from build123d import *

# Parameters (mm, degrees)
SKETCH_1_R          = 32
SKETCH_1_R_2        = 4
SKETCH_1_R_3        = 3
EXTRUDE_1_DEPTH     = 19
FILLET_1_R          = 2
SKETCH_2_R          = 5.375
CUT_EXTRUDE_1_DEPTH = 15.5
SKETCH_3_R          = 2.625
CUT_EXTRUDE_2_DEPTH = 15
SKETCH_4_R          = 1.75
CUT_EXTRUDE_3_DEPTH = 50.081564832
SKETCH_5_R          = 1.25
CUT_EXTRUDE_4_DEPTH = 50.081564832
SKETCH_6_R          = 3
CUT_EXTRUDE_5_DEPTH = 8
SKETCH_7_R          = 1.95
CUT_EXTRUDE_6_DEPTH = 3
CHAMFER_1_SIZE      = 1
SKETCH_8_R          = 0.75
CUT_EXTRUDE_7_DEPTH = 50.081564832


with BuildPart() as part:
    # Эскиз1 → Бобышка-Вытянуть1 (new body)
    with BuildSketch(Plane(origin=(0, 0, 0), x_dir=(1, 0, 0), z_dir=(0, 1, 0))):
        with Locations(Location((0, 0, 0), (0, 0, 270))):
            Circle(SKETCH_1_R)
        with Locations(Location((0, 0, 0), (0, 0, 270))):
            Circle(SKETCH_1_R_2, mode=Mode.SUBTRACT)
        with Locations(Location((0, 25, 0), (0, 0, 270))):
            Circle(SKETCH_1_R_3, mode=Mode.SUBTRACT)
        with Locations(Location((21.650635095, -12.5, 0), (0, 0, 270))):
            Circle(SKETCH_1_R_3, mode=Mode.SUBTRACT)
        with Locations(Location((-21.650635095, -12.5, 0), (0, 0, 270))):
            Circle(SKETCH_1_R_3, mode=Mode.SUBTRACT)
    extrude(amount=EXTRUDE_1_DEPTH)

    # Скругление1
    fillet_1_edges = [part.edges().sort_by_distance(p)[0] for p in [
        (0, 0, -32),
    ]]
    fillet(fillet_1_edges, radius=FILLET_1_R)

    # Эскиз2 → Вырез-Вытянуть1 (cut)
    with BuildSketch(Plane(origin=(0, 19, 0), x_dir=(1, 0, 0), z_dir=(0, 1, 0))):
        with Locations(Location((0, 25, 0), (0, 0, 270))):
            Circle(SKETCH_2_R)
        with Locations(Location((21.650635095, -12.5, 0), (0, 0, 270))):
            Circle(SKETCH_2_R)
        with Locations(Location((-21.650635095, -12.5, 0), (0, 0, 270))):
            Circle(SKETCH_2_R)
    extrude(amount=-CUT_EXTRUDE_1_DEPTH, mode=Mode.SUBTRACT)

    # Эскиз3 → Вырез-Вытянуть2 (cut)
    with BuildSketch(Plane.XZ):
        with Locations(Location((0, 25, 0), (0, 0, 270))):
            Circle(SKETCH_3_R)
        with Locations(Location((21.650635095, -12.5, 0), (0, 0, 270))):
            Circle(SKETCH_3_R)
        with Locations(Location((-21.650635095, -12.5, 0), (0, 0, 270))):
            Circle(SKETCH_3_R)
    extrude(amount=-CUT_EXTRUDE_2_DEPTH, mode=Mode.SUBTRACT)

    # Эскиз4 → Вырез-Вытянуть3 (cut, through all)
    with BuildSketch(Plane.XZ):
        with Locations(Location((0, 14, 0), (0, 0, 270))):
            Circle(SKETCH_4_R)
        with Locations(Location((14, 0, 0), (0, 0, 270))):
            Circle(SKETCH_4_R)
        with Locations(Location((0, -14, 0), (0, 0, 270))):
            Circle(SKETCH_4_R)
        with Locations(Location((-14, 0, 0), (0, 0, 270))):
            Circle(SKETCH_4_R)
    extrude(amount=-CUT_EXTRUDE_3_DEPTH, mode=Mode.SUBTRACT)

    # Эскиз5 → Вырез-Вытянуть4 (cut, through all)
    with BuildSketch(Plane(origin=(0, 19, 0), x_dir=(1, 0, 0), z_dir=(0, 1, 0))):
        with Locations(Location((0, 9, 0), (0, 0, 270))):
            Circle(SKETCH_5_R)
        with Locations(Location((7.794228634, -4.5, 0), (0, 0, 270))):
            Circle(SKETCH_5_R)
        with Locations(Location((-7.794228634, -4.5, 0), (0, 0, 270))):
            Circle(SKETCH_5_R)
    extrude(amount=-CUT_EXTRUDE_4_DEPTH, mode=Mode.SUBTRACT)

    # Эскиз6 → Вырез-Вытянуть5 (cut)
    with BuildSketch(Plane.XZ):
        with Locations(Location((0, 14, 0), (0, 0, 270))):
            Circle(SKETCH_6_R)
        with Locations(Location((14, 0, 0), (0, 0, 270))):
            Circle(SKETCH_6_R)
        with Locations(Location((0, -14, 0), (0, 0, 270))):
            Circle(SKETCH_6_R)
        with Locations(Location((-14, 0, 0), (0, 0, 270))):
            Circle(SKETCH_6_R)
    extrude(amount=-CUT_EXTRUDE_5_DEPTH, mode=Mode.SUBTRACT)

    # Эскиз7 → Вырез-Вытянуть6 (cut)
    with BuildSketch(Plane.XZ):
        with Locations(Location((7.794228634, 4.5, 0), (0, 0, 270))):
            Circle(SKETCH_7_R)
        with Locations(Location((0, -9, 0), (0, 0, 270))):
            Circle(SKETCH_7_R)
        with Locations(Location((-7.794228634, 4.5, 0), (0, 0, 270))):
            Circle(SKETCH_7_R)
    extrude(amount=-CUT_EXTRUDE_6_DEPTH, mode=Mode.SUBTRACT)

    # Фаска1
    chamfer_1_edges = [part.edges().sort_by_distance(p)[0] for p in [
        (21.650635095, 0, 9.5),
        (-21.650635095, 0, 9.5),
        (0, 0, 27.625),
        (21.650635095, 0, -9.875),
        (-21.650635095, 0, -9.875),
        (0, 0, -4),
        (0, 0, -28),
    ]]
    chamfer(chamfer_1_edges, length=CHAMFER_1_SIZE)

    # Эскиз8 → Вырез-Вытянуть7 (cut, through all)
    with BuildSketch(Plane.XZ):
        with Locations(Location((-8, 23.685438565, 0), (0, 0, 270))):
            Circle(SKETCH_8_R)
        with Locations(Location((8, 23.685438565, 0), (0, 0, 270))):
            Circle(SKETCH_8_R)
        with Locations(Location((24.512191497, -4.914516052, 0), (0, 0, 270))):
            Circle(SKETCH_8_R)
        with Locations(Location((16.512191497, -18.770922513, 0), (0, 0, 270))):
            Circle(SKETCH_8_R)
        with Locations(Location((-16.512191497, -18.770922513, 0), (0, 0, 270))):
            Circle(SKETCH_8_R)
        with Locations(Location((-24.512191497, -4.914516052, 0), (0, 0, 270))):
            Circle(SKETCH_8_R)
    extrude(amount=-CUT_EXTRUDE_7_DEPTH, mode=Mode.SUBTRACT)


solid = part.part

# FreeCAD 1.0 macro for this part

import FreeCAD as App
import Part
import Sketcher
Q = App.Units.Quantity


def edges_at(feature, points):
    """Names of the edges that pass closest to the given points."""
    edges = feature.Shape.Edges
    near = lambda p: min(range(len(edges)), key=lambda i: edges[i].distToShape(Part.Vertex(*p))[0])
    return sorted({f"Edge{near(p) + 1}" for p in points})

doc = App.newDocument("Part")
params = doc.addObject("Spreadsheet::Sheet", "Params")
for row, (alias, value) in enumerate([
    ("sketch1_diameter", "64 mm"),
    ("sketch1_diameter2", "6 mm"),
    ("sketch1_diameter3", "8 mm"),
    ("pad1_length", "19 mm"),
    ("fillet_radius", "2 mm"),
    ("sketch2_diameter", "10.75 mm"),
    ("pocket1_length", "15.5 mm"),
    ("sketch3_diameter", "5.25 mm"),
    ("pocket2_length", "15 mm"),
    ("sketch4_diameter", "3.5 mm"),
    ("sketch5_diameter", "2.5 mm"),
    ("sketch6_diameter", "6 mm"),
    ("pocket5_length", "8 mm"),
    ("sketch7_diameter", "3.9 mm"),
    ("pocket6_length", "3 mm"),
    ("chamfer_size", "1 mm"),
    ("sketch8_diameter", "1.5 mm"),
], start=1):
    params.set(f"A{row}", alias)
    params.set(f"B{row}", "=" + value)
    params.setAlias(f"B{row}", alias)

body = doc.addObject("PartDesign::Body", "Body")

sketch1 = body.newObject("Sketcher::SketchObject", "Sketch")
sketch1.AttachmentSupport = (doc.getObject("XZ_Plane"), [""])
sketch1.MapMode = "FlatFace"
sketch1.addGeometry([
    Part.Circle(App.Vector(0, 0, 0), App.Vector(0, 0, 1), 32),
    Part.Circle(App.Vector(0, -25, 0), App.Vector(0, 0, 1), 3),
    Part.Circle(App.Vector(-21.650635, 12.5, 0), App.Vector(0, 0, 1), 3),
    Part.Circle(App.Vector(0, 0, 0), App.Vector(0, 0, 1), 4),
    Part.Circle(App.Vector(21.650635, 12.5, 0), App.Vector(0, 0, 1), 3),
], False)
sketch1.addConstraint([
    Sketcher.Constraint("Coincident", 0, 3, -1, 1),
    Sketcher.Constraint("Coincident", 3, 3, -1, 1),
    Sketcher.Constraint("Equal", 1, 2),
    Sketcher.Constraint("Equal", 2, 4),
    Sketcher.Constraint("Symmetric", 2, 3, 4, 3, -2),
    Sketcher.Constraint("PointOnObject", 1, 3, -2),
    Sketcher.Constraint("Diameter", 0, Q("64 mm")),
    Sketcher.Constraint("Diameter", 1, Q("6 mm")),
    Sketcher.Constraint("Diameter", 3, Q("8 mm")),
    Sketcher.Constraint("DistanceY", 1, 3, -1, 1, Q("25 mm")),
    Sketcher.Constraint("DistanceY", -1, 1, 2, 3, Q("12.5 mm")),
    Sketcher.Constraint("DistanceX", 2, 3, 4, 3, Q("43.30127 mm")),
])
sketch1.setExpression("Constraints[6]", "Params.sketch1_diameter")
sketch1.setExpression("Constraints[7]", "Params.sketch1_diameter2")
sketch1.setExpression("Constraints[8]", "Params.sketch1_diameter3")
pad1 = body.newObject("PartDesign::Pad", "Pad")
pad1.Profile = sketch1
pad1.setExpression("Length", "Params.pad1_length")
pad1.Reversed = True
doc.recompute()

fillet = body.newObject("PartDesign::Fillet", "Fillet")
fillet.Base = (pad1, edges_at(pad1, [(0, 0, -32)]))
fillet.setExpression("Radius", "Params.fillet_radius")

sketch2 = body.newObject("Sketcher::SketchObject", "Sketch001")
sketch2.AttachmentSupport = (doc.getObject("XZ_Plane"), [""])
sketch2.MapMode = "FlatFace"
sketch2.AttachmentOffset = App.Placement(App.Vector(0, 0, -19), App.Rotation())
sketch2.addGeometry([
    Part.Circle(App.Vector(0, -25, 0), App.Vector(0, 0, 1), 5.375),
    Part.Circle(App.Vector(21.650635, 12.5, 0), App.Vector(0, 0, 1), 5.375),
    Part.Circle(App.Vector(-21.650635, 12.5, 0), App.Vector(0, 0, 1), 5.375),
], False)
sketch2.addConstraint([
    Sketcher.Constraint("Equal", 0, 1),
    Sketcher.Constraint("Equal", 1, 2),
    Sketcher.Constraint("Symmetric", 1, 3, 2, 3, -2),
    Sketcher.Constraint("PointOnObject", 0, 3, -2),
    Sketcher.Constraint("Diameter", 0, Q("10.75 mm")),
    Sketcher.Constraint("DistanceY", 0, 3, -1, 1, Q("25 mm")),
    Sketcher.Constraint("DistanceY", -1, 1, 1, 3, Q("12.5 mm")),
    Sketcher.Constraint("DistanceX", 2, 3, 1, 3, Q("43.30127 mm")),
])
sketch2.setExpression("Constraints[4]", "Params.sketch2_diameter")
pocket1 = body.newObject("PartDesign::Pocket", "Pocket")
pocket1.Profile = sketch2
pocket1.setExpression("Length", "Params.pocket1_length")
pocket1.Reversed = True

sketch3 = body.newObject("Sketcher::SketchObject", "Sketch002")
sketch3.AttachmentSupport = (doc.getObject("XZ_Plane"), [""])
sketch3.MapMode = "FlatFace"
sketch3.addGeometry([
    Part.Circle(App.Vector(0, 25, 0), App.Vector(0, 0, 1), 2.625),
    Part.Circle(App.Vector(21.650635, -12.5, 0), App.Vector(0, 0, 1), 2.625),
    Part.Circle(App.Vector(-21.650635, -12.5, 0), App.Vector(0, 0, 1), 2.625),
], False)
sketch3.addConstraint([
    Sketcher.Constraint("Equal", 0, 1),
    Sketcher.Constraint("Equal", 1, 2),
    Sketcher.Constraint("Symmetric", 1, 3, 2, 3, -2),
    Sketcher.Constraint("PointOnObject", 0, 3, -2),
    Sketcher.Constraint("Diameter", 0, Q("5.25 mm")),
    Sketcher.Constraint("DistanceY", -1, 1, 0, 3, Q("25 mm")),
    Sketcher.Constraint("DistanceY", 1, 3, -1, 1, Q("12.5 mm")),
    Sketcher.Constraint("DistanceX", 2, 3, 1, 3, Q("43.30127 mm")),
])
sketch3.setExpression("Constraints[4]", "Params.sketch3_diameter")
pocket2 = body.newObject("PartDesign::Pocket", "Pocket001")
pocket2.Profile = sketch3
pocket2.setExpression("Length", "Params.pocket2_length")

sketch4 = body.newObject("Sketcher::SketchObject", "Sketch003")
sketch4.AttachmentSupport = (doc.getObject("XZ_Plane"), [""])
sketch4.MapMode = "FlatFace"
sketch4.addGeometry([
    Part.Circle(App.Vector(0, 14, 0), App.Vector(0, 0, 1), 1.75),
    Part.Circle(App.Vector(14, 0, 0), App.Vector(0, 0, 1), 1.75),
    Part.Circle(App.Vector(0, -14, 0), App.Vector(0, 0, 1), 1.75),
    Part.Circle(App.Vector(-14, 0, 0), App.Vector(0, 0, 1), 1.75),
], False)
sketch4.addConstraint([
    Sketcher.Constraint("Equal", 0, 1),
    Sketcher.Constraint("Equal", 1, 2),
    Sketcher.Constraint("Equal", 2, 3),
    Sketcher.Constraint("Symmetric", 0, 3, 2, 3, -1, 1),
    Sketcher.Constraint("Symmetric", 1, 3, 3, 3, -1, 1),
    Sketcher.Constraint("PointOnObject", 0, 3, -2),
    Sketcher.Constraint("PointOnObject", 1, 3, -1),
    Sketcher.Constraint("Diameter", 0, Q("3.5 mm")),
    Sketcher.Constraint("DistanceY", -1, 1, 0, 3, Q("14 mm")),
    Sketcher.Constraint("DistanceX", -1, 1, 1, 3, Q("14 mm")),
])
sketch4.setExpression("Constraints[7]", "Params.sketch4_diameter")
pocket3 = body.newObject("PartDesign::Pocket", "Pocket002")
pocket3.Profile = sketch4
pocket3.Type = "ThroughAll"

sketch5 = body.newObject("Sketcher::SketchObject", "Sketch004")
sketch5.AttachmentSupport = (doc.getObject("XZ_Plane"), [""])
sketch5.MapMode = "FlatFace"
sketch5.AttachmentOffset = App.Placement(App.Vector(0, 0, -19), App.Rotation())
sketch5.addGeometry([
    Part.Circle(App.Vector(0, -9, 0), App.Vector(0, 0, 1), 1.25),
    Part.Circle(App.Vector(7.794229, 4.5, 0), App.Vector(0, 0, 1), 1.25),
    Part.Circle(App.Vector(-7.794229, 4.5, 0), App.Vector(0, 0, 1), 1.25),
], False)
sketch5.addConstraint([
    Sketcher.Constraint("Equal", 0, 1),
    Sketcher.Constraint("Equal", 1, 2),
    Sketcher.Constraint("Symmetric", 1, 3, 2, 3, -2),
    Sketcher.Constraint("PointOnObject", 0, 3, -2),
    Sketcher.Constraint("Diameter", 0, Q("2.5 mm")),
    Sketcher.Constraint("DistanceY", 0, 3, -1, 1, Q("9 mm")),
    Sketcher.Constraint("DistanceY", -1, 1, 1, 3, Q("4.5 mm")),
    Sketcher.Constraint("DistanceX", -1, 1, 1, 3, Q("7.794229 mm")),
])
sketch5.setExpression("Constraints[4]", "Params.sketch5_diameter")
pocket4 = body.newObject("PartDesign::Pocket", "Pocket003")
pocket4.Profile = sketch5
pocket4.Type = "ThroughAll"
pocket4.Reversed = True

sketch6 = body.newObject("Sketcher::SketchObject", "Sketch005")
sketch6.AttachmentSupport = (doc.getObject("XZ_Plane"), [""])
sketch6.MapMode = "FlatFace"
sketch6.addGeometry([
    Part.Circle(App.Vector(0, 14, 0), App.Vector(0, 0, 1), 3),
    Part.Circle(App.Vector(14, 0, 0), App.Vector(0, 0, 1), 3),
    Part.Circle(App.Vector(0, -14, 0), App.Vector(0, 0, 1), 3),
    Part.Circle(App.Vector(-14, 0, 0), App.Vector(0, 0, 1), 3),
], False)
sketch6.addConstraint([
    Sketcher.Constraint("Equal", 0, 1),
    Sketcher.Constraint("Equal", 1, 2),
    Sketcher.Constraint("Equal", 2, 3),
    Sketcher.Constraint("Symmetric", 0, 3, 2, 3, -1, 1),
    Sketcher.Constraint("Symmetric", 1, 3, 3, 3, -1, 1),
    Sketcher.Constraint("PointOnObject", 0, 3, -2),
    Sketcher.Constraint("PointOnObject", 1, 3, -1),
    Sketcher.Constraint("Diameter", 0, Q("6 mm")),
    Sketcher.Constraint("DistanceY", -1, 1, 0, 3, Q("14 mm")),
    Sketcher.Constraint("DistanceX", -1, 1, 1, 3, Q("14 mm")),
])
sketch6.setExpression("Constraints[7]", "Params.sketch6_diameter")
pocket5 = body.newObject("PartDesign::Pocket", "Pocket004")
pocket5.Profile = sketch6
pocket5.setExpression("Length", "Params.pocket5_length")

sketch7 = body.newObject("Sketcher::SketchObject", "Sketch006")
sketch7.AttachmentSupport = (doc.getObject("XZ_Plane"), [""])
sketch7.MapMode = "FlatFace"
sketch7.addGeometry([
    Part.Circle(App.Vector(7.794229, 4.5, 0), App.Vector(0, 0, 1), 1.95),
    Part.Circle(App.Vector(0, -9, 0), App.Vector(0, 0, 1), 1.95),
    Part.Circle(App.Vector(-7.794229, 4.5, 0), App.Vector(0, 0, 1), 1.95),
], False)
sketch7.addConstraint([
    Sketcher.Constraint("Equal", 0, 1),
    Sketcher.Constraint("Equal", 1, 2),
    Sketcher.Constraint("Symmetric", 0, 3, 2, 3, -2),
    Sketcher.Constraint("PointOnObject", 1, 3, -2),
    Sketcher.Constraint("Diameter", 0, Q("3.9 mm")),
    Sketcher.Constraint("DistanceY", 1, 3, -1, 1, Q("9 mm")),
    Sketcher.Constraint("DistanceY", -1, 1, 0, 3, Q("4.5 mm")),
    Sketcher.Constraint("DistanceX", -1, 1, 0, 3, Q("7.794229 mm")),
])
sketch7.setExpression("Constraints[4]", "Params.sketch7_diameter")
pocket6 = body.newObject("PartDesign::Pocket", "Pocket005")
pocket6.Profile = sketch7
pocket6.setExpression("Length", "Params.pocket6_length")
doc.recompute()

chamfer = body.newObject("PartDesign::Chamfer", "Chamfer")
chamfer.Base = (pocket6, edges_at(pocket6, [
    (21.651, 0, 9.5),
    (-21.651, 0, 9.5),
    (0, 0, 27.625),
    (21.651, 0, -9.875),
    (-21.651, 0, -9.875),
    (0, 0, -4),
    (0, 0, -28),
]))
chamfer.setExpression("Size", "Params.chamfer_size")

sketch8 = body.newObject("Sketcher::SketchObject", "Sketch007")
sketch8.AttachmentSupport = (doc.getObject("XZ_Plane"), [""])
sketch8.MapMode = "FlatFace"
sketch8.addGeometry([
    Part.Circle(App.Vector(-8, 23.685439, 0), App.Vector(0, 0, 1), 0.75),
    Part.Circle(App.Vector(8, 23.685439, 0), App.Vector(0, 0, 1), 0.75),
    Part.Circle(App.Vector(24.512191, -4.914516, 0), App.Vector(0, 0, 1), 0.75),
    Part.Circle(App.Vector(16.512191, -18.770923, 0), App.Vector(0, 0, 1), 0.75),
    Part.Circle(App.Vector(-16.512191, -18.770923, 0), App.Vector(0, 0, 1), 0.75),
    Part.Circle(App.Vector(-24.512191, -4.914516, 0), App.Vector(0, 0, 1), 0.75),
], False)
sketch8.addConstraint([
    Sketcher.Constraint("Equal", 0, 1),
    Sketcher.Constraint("Equal", 1, 2),
    Sketcher.Constraint("Equal", 2, 3),
    Sketcher.Constraint("Equal", 3, 4),
    Sketcher.Constraint("Equal", 4, 5),
    Sketcher.Constraint("Symmetric", 0, 3, 1, 3, -2),
    Sketcher.Constraint("Symmetric", 3, 3, 4, 3, -2),
    Sketcher.Constraint("Symmetric", 2, 3, 5, 3, -2),
    Sketcher.Constraint("Diameter", 0, Q("1.5 mm")),
    Sketcher.Constraint("DistanceX", 0, 3, -1, 1, Q("8 mm")),
    Sketcher.Constraint("DistanceX", 3, 3, 2, 3, Q("8 mm")),
    Sketcher.Constraint("DistanceY", -1, 1, 0, 3, Q("23.685439 mm")),
    Sketcher.Constraint("DistanceX", -1, 1, 2, 3, Q("24.512191 mm")),
    Sketcher.Constraint("DistanceY", 3, 3, 1, 3, Q("42.456361 mm")),
    Sketcher.Constraint("DistanceY", 2, 3, -1, 1, Q("4.914516 mm")),
])
sketch8.setExpression("Constraints[8]", "Params.sketch8_diameter")
pocket7 = body.newObject("PartDesign::Pocket", "Pocket006")
pocket7.Profile = sketch8
pocket7.Type = "ThroughAll"

doc.recompute()
